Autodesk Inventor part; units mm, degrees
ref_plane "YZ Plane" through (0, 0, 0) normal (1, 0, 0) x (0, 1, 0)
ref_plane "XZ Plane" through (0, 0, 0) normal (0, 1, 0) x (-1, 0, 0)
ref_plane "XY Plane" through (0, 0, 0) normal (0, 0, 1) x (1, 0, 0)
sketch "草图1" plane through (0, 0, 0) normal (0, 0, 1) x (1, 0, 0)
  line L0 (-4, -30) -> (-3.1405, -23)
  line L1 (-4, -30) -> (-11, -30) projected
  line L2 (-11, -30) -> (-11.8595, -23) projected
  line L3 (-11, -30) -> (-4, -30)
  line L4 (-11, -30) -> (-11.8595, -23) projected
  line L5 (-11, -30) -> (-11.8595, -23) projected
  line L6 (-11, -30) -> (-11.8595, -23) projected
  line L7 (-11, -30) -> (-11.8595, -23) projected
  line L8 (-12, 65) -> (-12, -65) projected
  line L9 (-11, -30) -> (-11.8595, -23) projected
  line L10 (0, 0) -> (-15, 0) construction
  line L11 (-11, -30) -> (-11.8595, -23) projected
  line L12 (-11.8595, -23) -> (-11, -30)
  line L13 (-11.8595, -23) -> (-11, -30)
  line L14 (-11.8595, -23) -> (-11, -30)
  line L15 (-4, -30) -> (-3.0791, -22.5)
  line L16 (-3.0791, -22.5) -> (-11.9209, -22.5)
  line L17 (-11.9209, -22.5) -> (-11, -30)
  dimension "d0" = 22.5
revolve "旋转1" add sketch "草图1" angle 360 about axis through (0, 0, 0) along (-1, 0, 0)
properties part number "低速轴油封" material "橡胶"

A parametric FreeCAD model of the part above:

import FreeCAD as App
import Part
import Sketcher

V = App.Vector
Q = App.Units.Quantity

doc = App.newDocument("Part")
body = doc.addObject("PartDesign::Body", "Body")

# Sketch on XY plane
sketch1 = body.newObject("Sketcher::SketchObject", "Sketch")
sketch1.AttachmentSupport = (doc.getObject("XY_Plane"), [""])
sketch1.MapMode = "FlatFace"
sketch1.addGeometry([
    Part.LineSegment(V(-11, -30, 0), V(-4, -30, 0)),  # 0
    Part.LineSegment(V(-4, -30, 0), V(-3.1405, -23, 0)),  # 1
    Part.LineSegment(V(-3.140493, -23.000001, 0), V(-3.0791, -22.5, 0)),  # 2
    Part.LineSegment(V(-3.0791, -22.5, 0), V(-11.9209, -22.5, 0)),  # 3
    Part.LineSegment(V(-11.9209, -22.5, 0), V(-11.859507, -23.000001, 0)),  # 4
    Part.LineSegment(V(-11.8595, -23, 0), V(-11, -30, 0)),  # 5
], False)
sketch1.addConstraint([
    Sketcher.Constraint("Coincident", 0, 2, 1, 1),
    Sketcher.Constraint("Coincident", 1, 2, 2, 1),
    Sketcher.Constraint("Coincident", 2, 2, 3, 1),
    Sketcher.Constraint("Coincident", 3, 2, 4, 1),
    Sketcher.Constraint("Coincident", 4, 2, 5, 1),
    Sketcher.Constraint("Coincident", 5, 2, 0, 1),
    Sketcher.Constraint("Horizontal", 0),
    Sketcher.Constraint("Horizontal", 3),
    Sketcher.Constraint("Parallel", 1, 2),
    Sketcher.Constraint("Parallel", 4, 5),
    Sketcher.Constraint("Horizontal", 1, 2, 4, 2),
    Sketcher.Constraint("Equal", 2, 4),
    Sketcher.Constraint("DistanceY", 2, 2, -1, 1, 22.5),
    Sketcher.Constraint("DistanceX", 0, 1, 0, 2, 7.0),
    Sketcher.Constraint("Angle", 1, Q("83 deg")),
    Sketcher.Constraint("DistanceX", 0, 2, -1, 1, 4.0),
    Sketcher.Constraint("DistanceY", 0, 2, -1, 1, 30.0),
    Sketcher.Constraint("DistanceY", 1, 2, -1, 1, 23.0),
])
revolution = body.newObject("PartDesign::Revolution", "Revolution")
revolution.Profile = sketch1
revolution.ReferenceAxis = (sketch1, ["H_Axis"])
revolution.Angle = 360

doc.recompute()
